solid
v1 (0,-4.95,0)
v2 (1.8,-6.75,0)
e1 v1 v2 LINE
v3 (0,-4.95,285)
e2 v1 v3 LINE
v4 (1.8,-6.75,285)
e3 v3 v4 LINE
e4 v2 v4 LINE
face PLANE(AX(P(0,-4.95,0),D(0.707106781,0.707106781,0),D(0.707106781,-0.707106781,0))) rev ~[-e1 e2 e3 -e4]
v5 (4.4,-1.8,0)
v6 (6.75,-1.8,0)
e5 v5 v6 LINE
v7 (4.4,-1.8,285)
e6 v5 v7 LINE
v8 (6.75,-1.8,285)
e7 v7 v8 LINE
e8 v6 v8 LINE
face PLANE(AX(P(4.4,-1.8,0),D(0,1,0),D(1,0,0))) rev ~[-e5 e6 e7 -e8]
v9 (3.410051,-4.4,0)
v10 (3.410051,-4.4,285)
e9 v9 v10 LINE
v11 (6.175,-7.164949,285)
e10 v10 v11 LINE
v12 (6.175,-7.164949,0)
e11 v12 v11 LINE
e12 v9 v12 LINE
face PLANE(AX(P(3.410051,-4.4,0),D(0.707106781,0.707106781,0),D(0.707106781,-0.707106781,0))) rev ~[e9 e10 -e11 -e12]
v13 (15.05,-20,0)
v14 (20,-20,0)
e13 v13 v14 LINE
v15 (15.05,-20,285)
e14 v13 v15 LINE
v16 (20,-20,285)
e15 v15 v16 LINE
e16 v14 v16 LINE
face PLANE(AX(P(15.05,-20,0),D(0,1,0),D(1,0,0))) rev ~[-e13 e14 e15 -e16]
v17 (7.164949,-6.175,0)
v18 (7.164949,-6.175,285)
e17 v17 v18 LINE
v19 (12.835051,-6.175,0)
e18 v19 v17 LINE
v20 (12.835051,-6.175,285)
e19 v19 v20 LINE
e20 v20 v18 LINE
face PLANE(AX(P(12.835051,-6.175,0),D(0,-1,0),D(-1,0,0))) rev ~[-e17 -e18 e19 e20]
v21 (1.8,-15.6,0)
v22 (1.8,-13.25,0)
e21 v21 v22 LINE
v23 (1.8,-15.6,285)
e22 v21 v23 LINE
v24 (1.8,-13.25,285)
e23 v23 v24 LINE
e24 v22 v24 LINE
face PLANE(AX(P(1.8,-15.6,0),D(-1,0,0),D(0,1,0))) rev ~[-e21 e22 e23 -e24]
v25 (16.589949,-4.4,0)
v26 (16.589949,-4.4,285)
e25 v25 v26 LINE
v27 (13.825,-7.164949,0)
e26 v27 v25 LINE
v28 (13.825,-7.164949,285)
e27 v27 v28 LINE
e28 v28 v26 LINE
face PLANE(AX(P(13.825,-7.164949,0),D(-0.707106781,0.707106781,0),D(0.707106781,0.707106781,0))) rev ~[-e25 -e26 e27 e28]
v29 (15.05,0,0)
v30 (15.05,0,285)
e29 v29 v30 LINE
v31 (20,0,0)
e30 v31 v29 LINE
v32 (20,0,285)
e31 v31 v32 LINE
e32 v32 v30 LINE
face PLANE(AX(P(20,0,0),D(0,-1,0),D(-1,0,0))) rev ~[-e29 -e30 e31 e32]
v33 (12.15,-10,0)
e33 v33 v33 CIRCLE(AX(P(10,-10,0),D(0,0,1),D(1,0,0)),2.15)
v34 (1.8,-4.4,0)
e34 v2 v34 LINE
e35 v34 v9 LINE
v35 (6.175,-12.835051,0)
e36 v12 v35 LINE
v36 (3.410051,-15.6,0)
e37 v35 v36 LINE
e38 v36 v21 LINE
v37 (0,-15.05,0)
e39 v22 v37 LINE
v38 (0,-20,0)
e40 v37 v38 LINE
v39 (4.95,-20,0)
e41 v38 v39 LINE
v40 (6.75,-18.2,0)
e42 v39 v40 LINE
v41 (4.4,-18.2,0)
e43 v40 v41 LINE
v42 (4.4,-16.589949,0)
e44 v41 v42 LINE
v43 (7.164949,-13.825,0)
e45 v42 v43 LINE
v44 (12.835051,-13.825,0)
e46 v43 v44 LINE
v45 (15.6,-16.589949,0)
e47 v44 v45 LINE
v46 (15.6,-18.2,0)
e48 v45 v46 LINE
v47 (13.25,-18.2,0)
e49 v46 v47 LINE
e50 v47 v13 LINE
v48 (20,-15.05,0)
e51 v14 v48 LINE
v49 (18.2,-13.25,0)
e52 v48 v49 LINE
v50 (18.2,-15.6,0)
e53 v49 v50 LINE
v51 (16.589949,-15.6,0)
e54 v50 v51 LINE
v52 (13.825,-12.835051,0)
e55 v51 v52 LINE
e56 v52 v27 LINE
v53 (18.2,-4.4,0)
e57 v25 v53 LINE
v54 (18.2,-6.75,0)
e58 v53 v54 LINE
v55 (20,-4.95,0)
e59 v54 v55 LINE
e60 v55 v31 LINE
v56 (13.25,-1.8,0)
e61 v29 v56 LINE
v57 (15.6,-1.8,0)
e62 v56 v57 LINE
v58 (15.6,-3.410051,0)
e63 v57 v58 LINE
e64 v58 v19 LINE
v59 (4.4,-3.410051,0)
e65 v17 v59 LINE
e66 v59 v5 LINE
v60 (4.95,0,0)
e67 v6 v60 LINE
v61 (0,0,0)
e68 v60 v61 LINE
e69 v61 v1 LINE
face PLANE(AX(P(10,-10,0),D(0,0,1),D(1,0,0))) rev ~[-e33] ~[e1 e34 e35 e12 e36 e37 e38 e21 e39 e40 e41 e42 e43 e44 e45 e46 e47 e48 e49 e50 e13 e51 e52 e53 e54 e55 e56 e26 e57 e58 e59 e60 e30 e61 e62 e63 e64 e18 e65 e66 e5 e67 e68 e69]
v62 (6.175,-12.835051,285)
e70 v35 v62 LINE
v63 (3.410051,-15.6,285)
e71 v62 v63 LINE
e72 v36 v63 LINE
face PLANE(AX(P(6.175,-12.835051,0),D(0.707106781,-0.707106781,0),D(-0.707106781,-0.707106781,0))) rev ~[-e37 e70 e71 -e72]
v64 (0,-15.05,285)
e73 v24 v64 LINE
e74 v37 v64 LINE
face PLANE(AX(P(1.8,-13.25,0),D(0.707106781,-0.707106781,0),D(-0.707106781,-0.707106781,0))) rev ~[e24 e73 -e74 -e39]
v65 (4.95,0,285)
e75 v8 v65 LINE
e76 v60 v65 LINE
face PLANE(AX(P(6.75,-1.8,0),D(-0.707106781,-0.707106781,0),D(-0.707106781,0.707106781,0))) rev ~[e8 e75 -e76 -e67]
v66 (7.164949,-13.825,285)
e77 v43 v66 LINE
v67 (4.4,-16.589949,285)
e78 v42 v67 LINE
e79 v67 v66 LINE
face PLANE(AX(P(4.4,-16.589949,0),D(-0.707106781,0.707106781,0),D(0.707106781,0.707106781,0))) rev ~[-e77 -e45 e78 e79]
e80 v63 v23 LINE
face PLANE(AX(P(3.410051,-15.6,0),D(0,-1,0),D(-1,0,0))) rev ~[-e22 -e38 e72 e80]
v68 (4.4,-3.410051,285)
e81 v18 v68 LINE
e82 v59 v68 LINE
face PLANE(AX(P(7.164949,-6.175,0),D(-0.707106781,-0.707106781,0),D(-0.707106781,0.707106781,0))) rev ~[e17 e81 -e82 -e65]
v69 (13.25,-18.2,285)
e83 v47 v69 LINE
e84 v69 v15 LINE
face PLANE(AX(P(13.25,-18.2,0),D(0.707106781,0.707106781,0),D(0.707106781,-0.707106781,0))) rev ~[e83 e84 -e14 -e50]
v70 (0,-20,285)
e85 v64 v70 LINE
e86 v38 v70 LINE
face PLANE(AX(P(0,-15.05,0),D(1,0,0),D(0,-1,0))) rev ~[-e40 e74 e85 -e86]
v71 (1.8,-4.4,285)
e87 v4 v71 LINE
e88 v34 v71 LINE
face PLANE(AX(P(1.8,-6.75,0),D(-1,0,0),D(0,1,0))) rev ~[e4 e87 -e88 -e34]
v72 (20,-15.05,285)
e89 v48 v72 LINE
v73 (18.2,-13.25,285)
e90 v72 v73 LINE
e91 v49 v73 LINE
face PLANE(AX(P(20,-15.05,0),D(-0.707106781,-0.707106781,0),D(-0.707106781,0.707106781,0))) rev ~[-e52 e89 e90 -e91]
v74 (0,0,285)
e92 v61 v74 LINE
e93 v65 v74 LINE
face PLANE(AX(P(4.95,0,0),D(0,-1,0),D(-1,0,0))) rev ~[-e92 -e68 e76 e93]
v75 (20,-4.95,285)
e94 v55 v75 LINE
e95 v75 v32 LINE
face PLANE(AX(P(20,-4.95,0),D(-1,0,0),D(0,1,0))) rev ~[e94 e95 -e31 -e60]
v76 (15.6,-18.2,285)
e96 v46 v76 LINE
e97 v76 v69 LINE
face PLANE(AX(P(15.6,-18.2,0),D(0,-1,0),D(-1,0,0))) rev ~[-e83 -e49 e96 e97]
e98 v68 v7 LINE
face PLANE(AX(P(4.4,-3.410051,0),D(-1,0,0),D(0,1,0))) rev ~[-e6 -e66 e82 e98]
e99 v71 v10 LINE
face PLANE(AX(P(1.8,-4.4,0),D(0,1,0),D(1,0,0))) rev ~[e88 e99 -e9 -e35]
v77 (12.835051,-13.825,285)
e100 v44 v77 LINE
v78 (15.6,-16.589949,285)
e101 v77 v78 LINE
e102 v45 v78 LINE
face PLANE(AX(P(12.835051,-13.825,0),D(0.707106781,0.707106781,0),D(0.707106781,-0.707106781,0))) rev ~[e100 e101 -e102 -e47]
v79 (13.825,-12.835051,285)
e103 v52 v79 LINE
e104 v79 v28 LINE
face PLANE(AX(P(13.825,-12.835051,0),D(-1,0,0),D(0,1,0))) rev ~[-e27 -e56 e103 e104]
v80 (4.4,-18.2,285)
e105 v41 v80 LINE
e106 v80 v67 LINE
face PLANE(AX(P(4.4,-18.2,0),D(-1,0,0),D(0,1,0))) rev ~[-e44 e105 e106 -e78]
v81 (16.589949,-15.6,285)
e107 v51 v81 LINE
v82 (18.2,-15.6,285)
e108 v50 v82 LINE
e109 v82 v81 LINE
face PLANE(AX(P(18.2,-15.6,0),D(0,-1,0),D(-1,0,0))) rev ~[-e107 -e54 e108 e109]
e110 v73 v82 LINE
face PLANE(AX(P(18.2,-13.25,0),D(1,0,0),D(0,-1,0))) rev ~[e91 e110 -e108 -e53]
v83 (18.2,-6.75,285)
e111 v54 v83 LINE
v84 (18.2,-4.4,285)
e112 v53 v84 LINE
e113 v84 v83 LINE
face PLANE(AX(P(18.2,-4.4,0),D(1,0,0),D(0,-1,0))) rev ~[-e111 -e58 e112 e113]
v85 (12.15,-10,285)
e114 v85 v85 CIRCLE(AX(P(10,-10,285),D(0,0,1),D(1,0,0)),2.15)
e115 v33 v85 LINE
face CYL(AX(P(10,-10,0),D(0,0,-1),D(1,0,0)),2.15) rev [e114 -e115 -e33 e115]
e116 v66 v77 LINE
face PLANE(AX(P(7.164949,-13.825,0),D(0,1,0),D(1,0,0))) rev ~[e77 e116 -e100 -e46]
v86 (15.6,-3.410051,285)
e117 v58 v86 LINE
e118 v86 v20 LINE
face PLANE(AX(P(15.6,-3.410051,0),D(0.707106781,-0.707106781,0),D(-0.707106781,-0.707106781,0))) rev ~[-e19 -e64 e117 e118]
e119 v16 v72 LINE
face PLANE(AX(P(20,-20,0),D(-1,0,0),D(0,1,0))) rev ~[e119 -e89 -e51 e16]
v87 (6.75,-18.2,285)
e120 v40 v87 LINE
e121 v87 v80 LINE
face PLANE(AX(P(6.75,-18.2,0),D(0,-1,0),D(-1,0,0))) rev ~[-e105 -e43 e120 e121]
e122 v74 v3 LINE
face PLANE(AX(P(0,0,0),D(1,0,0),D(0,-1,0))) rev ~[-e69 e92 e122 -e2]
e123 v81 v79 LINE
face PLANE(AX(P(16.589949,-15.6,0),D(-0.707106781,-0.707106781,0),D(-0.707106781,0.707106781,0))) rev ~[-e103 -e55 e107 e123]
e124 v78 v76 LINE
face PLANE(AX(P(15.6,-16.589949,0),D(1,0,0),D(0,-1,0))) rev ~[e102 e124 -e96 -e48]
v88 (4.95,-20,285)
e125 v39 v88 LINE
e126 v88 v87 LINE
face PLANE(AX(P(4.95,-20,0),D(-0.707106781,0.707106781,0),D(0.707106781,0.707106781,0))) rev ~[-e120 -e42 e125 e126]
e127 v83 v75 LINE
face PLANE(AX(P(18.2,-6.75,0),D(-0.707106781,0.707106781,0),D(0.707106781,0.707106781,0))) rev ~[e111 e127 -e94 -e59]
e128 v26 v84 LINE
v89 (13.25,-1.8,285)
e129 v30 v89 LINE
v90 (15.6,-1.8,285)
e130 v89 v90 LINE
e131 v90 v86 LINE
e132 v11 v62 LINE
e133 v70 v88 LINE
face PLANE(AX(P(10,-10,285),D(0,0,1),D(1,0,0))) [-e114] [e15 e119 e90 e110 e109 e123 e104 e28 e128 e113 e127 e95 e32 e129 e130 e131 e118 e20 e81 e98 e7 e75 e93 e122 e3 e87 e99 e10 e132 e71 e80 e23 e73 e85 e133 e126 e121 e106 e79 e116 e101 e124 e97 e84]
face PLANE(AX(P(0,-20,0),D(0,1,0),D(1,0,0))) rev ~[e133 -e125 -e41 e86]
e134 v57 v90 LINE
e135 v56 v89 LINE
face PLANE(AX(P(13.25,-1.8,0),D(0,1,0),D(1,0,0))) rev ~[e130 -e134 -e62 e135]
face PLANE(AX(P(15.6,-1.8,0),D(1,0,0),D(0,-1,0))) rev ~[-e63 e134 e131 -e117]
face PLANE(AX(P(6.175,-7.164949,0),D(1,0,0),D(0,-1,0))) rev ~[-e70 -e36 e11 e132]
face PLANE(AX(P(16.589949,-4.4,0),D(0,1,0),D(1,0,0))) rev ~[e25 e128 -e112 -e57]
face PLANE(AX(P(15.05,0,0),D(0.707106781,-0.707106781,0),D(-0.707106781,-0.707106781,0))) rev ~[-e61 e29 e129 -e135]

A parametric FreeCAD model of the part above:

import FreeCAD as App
import Part
import Sketcher

V = App.Vector
Q = App.Units.Quantity


def add_polygon(sketch, points):
    """Adds a closed chain of lines whose ends are joined by coincident constraints."""
    first, n = sketch.GeometryCount, len(points)
    for a, b in zip(points, points[1:] + points[:1]):
        sketch.addGeometry(Part.LineSegment(App.Vector(*a, 0), App.Vector(*b, 0)), False)
    for i in range(n):
        sketch.addConstraint(Sketcher.Constraint("Coincident", first + i, 2, first + (i + 1) % n, 1))

doc = App.newDocument("Part")
body = doc.addObject("PartDesign::Body", "Body")

sketch1 = doc.addObject("Sketcher::SketchObject", "Sketch")
body.addObject(sketch1)
sketch1.AttachmentSupport = (doc.XY_Plane, [""])
sketch1.MapMode = "FlatFace"
add_polygon(sketch1, [(0, 0), (0, -5), (1.8, -6.8), (1.8, -4.4), (3.4, -4.4), (6.2, -7.2), (6.2, -12.8), (3.4, -15.6), (1.8, -15.6), (1.8, -13.2), (0, -15.1), (0, -20), (5, -20), (6.8, -18.2), (4.4, -18.2), (4.4, -16.6), (7.2, -13.8), (12.8, -13.8), (15.6, -16.6), (15.6, -18.2), (13.2, -18.2), (15.1, -20), (20, -20), (20, -15.1), (18.2, -13.2), (18.2, -15.6), (16.6, -15.6), (13.8, -12.8), (13.8, -7.2), (16.6, -4.4), (18.2, -4.4), (18.2, -6.8), (20, -5), (20, 0), (15.1, 0), (13.2, -1.8), (15.6, -1.8), (15.6, -3.4), (12.8, -6.2), (7.2, -6.2), (4.4, -3.4), (4.4, -1.8), (6.8, -1.8), (5, 0)])
sketch1.addGeometry(Part.Circle(V(10, -10, 0), V(0, 0, 1), 2.1), False)
sketch1.addConstraint([
    Sketcher.Constraint("Vertical", 0),
    Sketcher.Constraint("Vertical", 2),
    Sketcher.Constraint("Horizontal", 3),
    Sketcher.Constraint("Vertical", 5),
    Sketcher.Constraint("Horizontal", 7),
    Sketcher.Constraint("Vertical", 8),
    Sketcher.Constraint("Vertical", 10),
    Sketcher.Constraint("Horizontal", 11),
    Sketcher.Constraint("Horizontal", 13),
    Sketcher.Constraint("Vertical", 14),
    Sketcher.Constraint("Horizontal", 16),
    Sketcher.Constraint("Vertical", 18),
    Sketcher.Constraint("Horizontal", 19),
    Sketcher.Constraint("Horizontal", 21),
    Sketcher.Constraint("Vertical", 22),
    Sketcher.Constraint("Vertical", 24),
    Sketcher.Constraint("Horizontal", 25),
    Sketcher.Constraint("Vertical", 27),
    Sketcher.Constraint("Horizontal", 29),
    Sketcher.Constraint("Vertical", 30),
    Sketcher.Constraint("Vertical", 32),
    Sketcher.Constraint("Horizontal", 33),
    Sketcher.Constraint("Horizontal", 35),
    Sketcher.Constraint("Vertical", 36),
    Sketcher.Constraint("Horizontal", 38),
    Sketcher.Constraint("Vertical", 40),
    Sketcher.Constraint("Horizontal", 41),
    Sketcher.Constraint("Horizontal", 43),
    Sketcher.Constraint("Coincident", 43, 2, -1, 1),
    Sketcher.Constraint("PointOnObject", 9, 2, -2),
    Sketcher.Constraint("PointOnObject", 32, 2, -1),
    Sketcher.Constraint("Parallel", 1, 4),
    Sketcher.Constraint("Perpendicular", 4, 6),
    Sketcher.Constraint("Parallel", 6, 9),
    Sketcher.Constraint("Parallel", 9, 12),
    Sketcher.Constraint("Parallel", 12, 15),
    Sketcher.Constraint("Perpendicular", 15, 17),
    Sketcher.Constraint("Parallel", 17, 20),
    Sketcher.Constraint("Parallel", 20, 23),
    Sketcher.Constraint("Parallel", 23, 26),
    Sketcher.Constraint("Perpendicular", 26, 28),
    Sketcher.Constraint("Parallel", 28, 31),
    Sketcher.Constraint("Parallel", 31, 34),
    Sketcher.Constraint("Parallel", 34, 37),
    Sketcher.Constraint("Perpendicular", 37, 39),
    Sketcher.Constraint("Parallel", 39, 42),
    Sketcher.Constraint("Horizontal", 14, 2, 17, 2),
    Sketcher.Constraint("Horizontal", 13, 2, 18, 2),
    Sketcher.Constraint("Horizontal", 11, 2, 20, 2),
    Sketcher.Constraint("Horizontal", 9, 2, 22, 2),
    Sketcher.Constraint("Horizontal", 8, 2, 23, 2),
    Sketcher.Constraint("Horizontal", 7, 2, 24, 2),
    Sketcher.Constraint("Horizontal", 5, 2, 26, 2),
    Sketcher.Constraint("Horizontal", 4, 2, 27, 2),
    Sketcher.Constraint("Horizontal", 3, 2, 28, 2),
    Sketcher.Constraint("Horizontal", 1, 2, 30, 2),
    Sketcher.Constraint("Horizontal", 0, 2, 31, 2),
    Sketcher.Constraint("Horizontal", 36, 2, 39, 2),
    Sketcher.Constraint("Horizontal", 35, 2, 40, 2),
    Sketcher.Constraint("Vertical", 3, 2, 6, 2),
    Sketcher.Constraint("Vertical", 2, 2, 7, 2),
    Sketcher.Constraint("Vertical", 25, 2, 28, 2),
    Sketcher.Constraint("Vertical", 24, 2, 29, 2),
    Sketcher.Constraint("Vertical", 20, 2, 33, 2),
    Sketcher.Constraint("Vertical", 19, 2, 34, 2),
    Sketcher.Constraint("Vertical", 18, 2, 35, 2),
    Sketcher.Constraint("Vertical", 16, 2, 37, 2),
    Sketcher.Constraint("Vertical", 15, 2, 38, 2),
    Sketcher.Constraint("Vertical", 12, 2, 41, 2),
    Sketcher.Constraint("Equal", 13, 19),
    Sketcher.Constraint("Equal", 11, 21),
    Sketcher.Constraint("Equal", 7, 25),
    Sketcher.Constraint("Equal", 43, 0),
    Sketcher.Constraint("Equal", 41, 2),
    Sketcher.Constraint("Equal", 38, 5),
    Sketcher.Constraint("Equal", 2, 8),
    Sketcher.Constraint("Equal", 0, 10),
    Sketcher.Constraint("Equal", 29, 14),
    Sketcher.Constraint("Equal", 18, 36),
    Sketcher.Constraint("Equal", 9, 12),
    Sketcher.Constraint("Equal", 6, 15),
    Sketcher.Constraint("Diameter", 44, Q("4.3 mm")),
    Sketcher.Constraint("DistanceX", -1, 1, 44, 3, Q("10 mm")),
    Sketcher.Constraint("DistanceY", 44, 3, -1, 1, Q("10 mm")),
    Sketcher.Constraint("DistanceY", 10, 2, -1, 1, Q("20 mm")),
    Sketcher.Constraint("DistanceX", 11, 1, 11, 2, Q("4.95 mm")),
    Sketcher.Constraint("DistanceX", 13, 2, 13, 1, Q("2.35 mm")),
    Sketcher.Constraint("DistanceX", -1, 1, 1, 2, Q("1.8 mm")),
    Sketcher.Constraint("DistanceX", 4, 2, 27, 2, Q("7.65 mm")),
    Sketcher.Constraint("DistanceX", 16, 1, 16, 2, Q("5.670101 mm")),
])
pad1 = doc.addObject("PartDesign::Pad", "Pad")
body.addObject(pad1)
pad1.Profile = sketch1
pad1.Length = 285

doc.recompute()
